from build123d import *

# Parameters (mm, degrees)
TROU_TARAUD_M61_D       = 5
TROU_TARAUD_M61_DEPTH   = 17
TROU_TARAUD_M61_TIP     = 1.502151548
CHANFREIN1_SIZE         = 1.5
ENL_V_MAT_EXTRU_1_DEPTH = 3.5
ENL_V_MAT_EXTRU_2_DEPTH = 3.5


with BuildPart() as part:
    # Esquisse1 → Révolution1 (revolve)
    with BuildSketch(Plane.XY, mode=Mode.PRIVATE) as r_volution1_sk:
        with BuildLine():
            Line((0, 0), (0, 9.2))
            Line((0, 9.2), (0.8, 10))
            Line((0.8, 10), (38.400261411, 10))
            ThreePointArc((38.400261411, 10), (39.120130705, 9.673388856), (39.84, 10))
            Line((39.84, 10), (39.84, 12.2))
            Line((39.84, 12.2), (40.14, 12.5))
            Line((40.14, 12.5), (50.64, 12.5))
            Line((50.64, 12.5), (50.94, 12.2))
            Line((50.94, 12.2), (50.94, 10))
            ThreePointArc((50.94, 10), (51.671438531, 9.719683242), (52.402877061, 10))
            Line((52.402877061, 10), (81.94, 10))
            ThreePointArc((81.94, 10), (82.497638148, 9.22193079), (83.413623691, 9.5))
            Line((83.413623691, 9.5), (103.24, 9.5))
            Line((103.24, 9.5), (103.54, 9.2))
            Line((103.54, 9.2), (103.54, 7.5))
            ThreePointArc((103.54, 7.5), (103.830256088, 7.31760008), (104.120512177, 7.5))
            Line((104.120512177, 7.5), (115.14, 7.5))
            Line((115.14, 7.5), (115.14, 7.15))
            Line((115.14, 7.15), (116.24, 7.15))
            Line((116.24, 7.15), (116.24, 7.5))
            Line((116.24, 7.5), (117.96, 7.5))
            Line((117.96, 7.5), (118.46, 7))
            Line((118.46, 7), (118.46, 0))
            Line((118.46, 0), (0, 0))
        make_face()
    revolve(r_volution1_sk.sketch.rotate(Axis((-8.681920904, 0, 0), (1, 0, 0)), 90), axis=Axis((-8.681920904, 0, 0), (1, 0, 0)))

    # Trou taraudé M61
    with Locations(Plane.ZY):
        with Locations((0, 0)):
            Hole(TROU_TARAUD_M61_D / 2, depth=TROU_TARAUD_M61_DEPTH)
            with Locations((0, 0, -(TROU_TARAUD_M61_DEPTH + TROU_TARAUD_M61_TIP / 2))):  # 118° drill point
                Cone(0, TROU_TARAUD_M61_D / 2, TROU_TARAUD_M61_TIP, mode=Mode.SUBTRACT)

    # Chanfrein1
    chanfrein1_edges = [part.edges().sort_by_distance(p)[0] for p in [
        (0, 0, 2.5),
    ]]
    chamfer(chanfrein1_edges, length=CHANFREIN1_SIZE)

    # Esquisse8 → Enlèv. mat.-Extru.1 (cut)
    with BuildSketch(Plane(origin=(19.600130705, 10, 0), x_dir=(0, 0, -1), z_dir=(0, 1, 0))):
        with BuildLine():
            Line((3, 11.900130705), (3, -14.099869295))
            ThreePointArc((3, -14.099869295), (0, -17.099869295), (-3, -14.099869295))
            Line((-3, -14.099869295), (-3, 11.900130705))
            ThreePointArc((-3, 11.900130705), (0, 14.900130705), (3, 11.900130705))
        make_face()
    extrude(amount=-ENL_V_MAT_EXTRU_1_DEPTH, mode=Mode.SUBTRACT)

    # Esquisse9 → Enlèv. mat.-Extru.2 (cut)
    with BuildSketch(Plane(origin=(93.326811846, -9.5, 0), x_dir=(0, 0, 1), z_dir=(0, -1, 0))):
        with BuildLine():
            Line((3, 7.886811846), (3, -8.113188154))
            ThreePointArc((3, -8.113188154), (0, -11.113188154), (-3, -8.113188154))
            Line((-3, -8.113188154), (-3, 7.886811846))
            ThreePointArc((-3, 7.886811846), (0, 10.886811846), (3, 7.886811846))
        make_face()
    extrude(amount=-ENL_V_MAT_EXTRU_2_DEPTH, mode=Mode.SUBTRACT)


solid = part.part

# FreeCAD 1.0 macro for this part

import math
import FreeCAD as App
import Part
import Sketcher
Q = App.Units.Quantity


def edges_at(feature, points):
    """Names of the edges that pass closest to the given points."""
    edges = feature.Shape.Edges
    near = lambda p: min(range(len(edges)), key=lambda i: edges[i].distToShape(Part.Vertex(*p))[0])
    return sorted({f"Edge{near(p) + 1}" for p in points})

doc = App.newDocument("Part")
body = doc.addObject("PartDesign::Body", "Body")

# Sketch on XY plane
sketch1 = body.newObject("Sketcher::SketchObject", "Sketch")
sketch1.AttachmentSupport = (doc.getObject("XY_Plane"), [""])
sketch1.MapMode = "FlatFace"
sketch1.addGeometry([
    Part.LineSegment(App.Vector(0, 9.2, 0), App.Vector(0, 0, 0)),  # 0
    Part.LineSegment(App.Vector(0, 0, 0), App.Vector(118.46, 0, 0)),  # 1
    Part.LineSegment(App.Vector(118.46, 0, 0), App.Vector(118.46, 7, 0)),  # 2
    Part.LineSegment(App.Vector(118.46, 7, 0), App.Vector(117.96, 7.5, 0)),  # 3
    Part.LineSegment(App.Vector(117.96, 7.5, 0), App.Vector(116.24, 7.5, 0)),  # 4
    Part.LineSegment(App.Vector(116.24, 7.5, 0), App.Vector(116.24, 7.15, 0)),  # 5
    Part.LineSegment(App.Vector(116.24, 7.15, 0), App.Vector(115.14, 7.15, 0)),  # 6
    Part.LineSegment(App.Vector(115.14, 7.15, 0), App.Vector(115.14, 7.5, 0)),  # 7
    Part.LineSegment(App.Vector(115.14, 7.5, 0), App.Vector(104.120512, 7.5, 0)),  # 8
    Part.ArcOfCircle(Part.Circle(App.Vector(103.830256, 7.639745, 0), App.Vector(0, 0, 1), 0.322145), math.radians(-154.291356), math.radians(-25.708644)),  # 9
    Part.LineSegment(App.Vector(103.54, 7.5, 0), App.Vector(103.54, 9.2, 0)),  # 10
    Part.LineSegment(App.Vector(103.54, 9.2, 0), App.Vector(103.24, 9.5, 0)),  # 11
    Part.LineSegment(App.Vector(103.24, 9.5, 0), App.Vector(83.413624, 9.5, 0)),  # 12
    Part.ArcOfCircle(Part.Circle(App.Vector(82.761637, 10, 0), App.Vector(0, 0, 1), 0.821637), math.radians(180), math.radians(322.515887)),  # 13
    Part.LineSegment(App.Vector(81.94, 10, 0), App.Vector(52.402877, 10, 0)),  # 14
    Part.ArcOfCircle(Part.Circle(App.Vector(51.671439, 10.814123, 0), App.Vector(0, 0, 1), 1.09444), math.radians(-131.937696), math.radians(-48.062303)),  # 15
    Part.LineSegment(App.Vector(50.94, 10, 0), App.Vector(50.94, 12.2, 0)),  # 16
    Part.LineSegment(App.Vector(50.94, 12.2, 0), App.Vector(50.64, 12.5, 0)),  # 17
    Part.LineSegment(App.Vector(50.64, 12.5, 0), App.Vector(40.14, 12.5, 0)),  # 18
    Part.LineSegment(App.Vector(40.14, 12.5, 0), App.Vector(39.84, 12.2, 0)),  # 19
    Part.LineSegment(App.Vector(39.84, 12.2, 0), App.Vector(39.84, 10, 0)),  # 20
    Part.ArcOfCircle(Part.Circle(App.Vector(39.120131, 10.630011, 0), App.Vector(0, 0, 1), 0.956622), math.radians(-138.808442), math.radians(-41.191558)),  # 21
    Part.LineSegment(App.Vector(38.400261, 10, 0), App.Vector(0.8, 10, 0)),  # 22
    Part.LineSegment(App.Vector(0.8, 10, 0), App.Vector(0, 9.2, 0)),  # 23
], False)
sketch1.addConstraint([
    Sketcher.Constraint("Coincident", 0, 2, 1, 1),
    Sketcher.Constraint("Coincident", 1, 2, 2, 1),
    Sketcher.Constraint("Coincident", 2, 2, 3, 1),
    Sketcher.Constraint("Coincident", 3, 2, 4, 1),
    Sketcher.Constraint("Coincident", 4, 2, 5, 1),
    Sketcher.Constraint("Coincident", 5, 2, 6, 1),
    Sketcher.Constraint("Coincident", 6, 2, 7, 1),
    Sketcher.Constraint("Coincident", 7, 2, 8, 1),
    Sketcher.Constraint("Coincident", 8, 2, 9, 2),
    Sketcher.Constraint("Coincident", 9, 1, 10, 1),
    Sketcher.Constraint("Coincident", 10, 2, 11, 1),
    Sketcher.Constraint("Coincident", 11, 2, 12, 1),
    Sketcher.Constraint("Coincident", 12, 2, 13, 2),
    Sketcher.Constraint("Coincident", 13, 1, 14, 1),
    Sketcher.Constraint("Coincident", 14, 2, 15, 2),
    Sketcher.Constraint("Coincident", 15, 1, 16, 1),
    Sketcher.Constraint("Coincident", 16, 2, 17, 1),
    Sketcher.Constraint("Coincident", 17, 2, 18, 1),
    Sketcher.Constraint("Coincident", 18, 2, 19, 1),
    Sketcher.Constraint("Coincident", 19, 2, 20, 1),
    Sketcher.Constraint("Coincident", 20, 2, 21, 2),
    Sketcher.Constraint("Coincident", 21, 1, 22, 1),
    Sketcher.Constraint("Coincident", 22, 2, 23, 1),
    Sketcher.Constraint("Coincident", 23, 2, 0, 1),
    Sketcher.Constraint("Vertical", 0),
    Sketcher.Constraint("Horizontal", 1),
    Sketcher.Constraint("Vertical", 2),
    Sketcher.Constraint("Horizontal", 4),
    Sketcher.Constraint("Vertical", 5),
    Sketcher.Constraint("Horizontal", 6),
    Sketcher.Constraint("Vertical", 7),
    Sketcher.Constraint("Horizontal", 8),
    Sketcher.Constraint("Vertical", 10),
    Sketcher.Constraint("Horizontal", 12),
    Sketcher.Constraint("Horizontal", 14),
    Sketcher.Constraint("Vertical", 16),
    Sketcher.Constraint("Horizontal", 18),
    Sketcher.Constraint("Vertical", 20),
    Sketcher.Constraint("Horizontal", 22),
    Sketcher.Constraint("Coincident", 0, 2, -1, 1),
    Sketcher.Constraint("Parallel", 3, 11),
    Sketcher.Constraint("Parallel", 11, 17),
    Sketcher.Constraint("Perpendicular", 17, 19),
    Sketcher.Constraint("Parallel", 19, 23),
    Sketcher.Constraint("Horizontal", 4, 2, 7, 2),
    Sketcher.Constraint("Horizontal", 8, 2, 9, 1),
    Sketcher.Constraint("Horizontal", 14, 2, 15, 1),
    Sketcher.Constraint("Horizontal", 16, 2, 19, 2),
    Sketcher.Constraint("Horizontal", 15, 1, 20, 2),
    Sketcher.Constraint("Horizontal", 20, 2, 21, 1),
    Sketcher.Constraint("Horizontal", 10, 2, 23, 2),
    Sketcher.Constraint("Equal", 11, 17),
    Sketcher.Constraint("Equal", 17, 19),
    Sketcher.Constraint("DistanceY", 2, 1, 2, 2, Q("7 mm")),
    Sketcher.Constraint("DistanceX", 6, 2, 6, 1, Q("1.1 mm")),
    Sketcher.Constraint("DistanceX", 18, 2, 18, 1, Q("10.5 mm")),
    Sketcher.Constraint("DistanceY", 0, 2, 0, 1, Q("9.2 mm")),
    Sketcher.Constraint("DistanceY", 10, 1, 10, 2, Q("1.7 mm")),
    Sketcher.Constraint("DistanceY", 16, 1, 16, 2, Q("2.2 mm")),
    Sketcher.Constraint("DistanceY", -1, 1, 13, 3, Q("10 mm")),
    Sketcher.Constraint("DistanceY", -1, 1, 13, 1, Q("10 mm")),
    Sketcher.Constraint("DistanceY", 9, 1, 11, 2, Q("2 mm")),
    Sketcher.Constraint("DistanceX", 15, 1, 13, 1, Q("31 mm")),
    Sketcher.Constraint("DistanceX", 1, 1, 1, 2, Q("118.46 mm")),
    Sketcher.Constraint("DistanceX", 4, 2, 4, 1, Q("1.72 mm")),
    Sketcher.Constraint("DistanceY", 5, 2, 5, 1, Q("0.35 mm")),
    Sketcher.Constraint("DistanceX", 9, 1, 7, 2, Q("11.6 mm")),
    Sketcher.Constraint("DistanceX", 13, 1, 11, 2, Q("21.3 mm")),
    Sketcher.Constraint("Radius", 15, Q("1.09444 mm")),
    Sketcher.Constraint("Radius", 21, Q("0.956622 mm")),
    Sketcher.Constraint("Radius", 9, Q("0.322145 mm")),
    Sketcher.Constraint("Radius", 13, Q("0.821637 mm")),
    Sketcher.Constraint("DistanceX", 22, 2, 22, 1, Q("37.600261 mm")),
    Sketcher.Constraint("DistanceX", 15, 3, 13, 3, Q("31.090198 mm")),
    Sketcher.Constraint("DistanceX", 8, 2, 8, 1, Q("11.019488 mm")),
])
revolution = body.newObject("PartDesign::Revolution", "Revolution")
revolution.Profile = sketch1
revolution.ReferenceAxis = (sketch1, ["H_Axis"])
revolution.Angle = 360

# Sketch on YZ plane
sketch2 = body.newObject("Sketcher::SketchObject", "Sketch001")
sketch2.AttachmentSupport = (doc.getObject("YZ_Plane"), [""])
sketch2.MapMode = "FlatFace"
sketch2.addGeometry(Part.Circle(App.Vector(0, 0, 0), App.Vector(0, 0, 1), 2.5), False)
sketch2.addConstraint([
    Sketcher.Constraint("Coincident", 0, 3, -1, 1),
    Sketcher.Constraint("Diameter", 0, Q("5 mm")),
])
doc.recompute()
hole = body.newObject("PartDesign::Hole", "Hole")
hole.Profile = sketch2
hole.ThreadType = "None"
hole.Diameter = 5
hole.DepthType = "Dimension"
hole.Depth = 17
hole.DrillPoint = "Angled"
hole.DrillPointAngle = 118
hole.Reversed = True
doc.recompute()

chamfer = body.newObject("PartDesign::Chamfer", "Chamfer")
chamfer.Base = (hole, edges_at(hole, [(0, 0, 2.5)]))
chamfer.Size = 1.5

# Sketch on XZ plane
sketch3 = body.newObject("Sketcher::SketchObject", "Sketch002")
sketch3.AttachmentSupport = (doc.getObject("XZ_Plane"), [""])
sketch3.MapMode = "FlatFace"
sketch3.AttachmentOffset = App.Placement(App.Vector(0, 0, -10), App.Rotation())
sketch3.addGeometry([
    Part.LineSegment(App.Vector(33.7, -3, 0), App.Vector(7.7, -3, 0)),
    Part.ArcOfCircle(Part.Circle(App.Vector(7.7, 0, 0), App.Vector(0, 0, 1), 3), math.radians(90), math.radians(270)),
    Part.LineSegment(App.Vector(7.7, 3, 0), App.Vector(33.7, 3, 0)),
    Part.ArcOfCircle(Part.Circle(App.Vector(33.7, 0, 0), App.Vector(0, 0, 1), 3), math.radians(-90), math.radians(90)),
], False)
sketch3.addConstraint([
    Sketcher.Constraint("Tangent", 0, 2, 1, 2),
    Sketcher.Constraint("Tangent", 1, 1, 2, 1),
    Sketcher.Constraint("Tangent", 2, 2, 3, 2),
    Sketcher.Constraint("Tangent", 3, 1, 0, 1),
    Sketcher.Constraint("Horizontal", 0),
    Sketcher.Constraint("Horizontal", 2),
    Sketcher.Constraint("PointOnObject", 1, 3, -1),
    Sketcher.Constraint("Radius", 1, Q("3 mm")),
    Sketcher.Constraint("DistanceX", 0, 2, 0, 1, Q("26 mm")),
    Sketcher.Constraint("DistanceX", -1, 1, 1, 3, Q("7.7 mm")),
])
pocket1 = body.newObject("PartDesign::Pocket", "Pocket")
pocket1.Profile = sketch3
pocket1.Length = 3.5
pocket1.Reversed = True

# Sketch on XZ plane
sketch4 = body.newObject("Sketcher::SketchObject", "Sketch003")
sketch4.AttachmentSupport = (doc.getObject("XZ_Plane"), [""])
sketch4.MapMode = "FlatFace"
sketch4.AttachmentOffset = App.Placement(App.Vector(0, 0, 9.5), App.Rotation())
sketch4.addGeometry([
    Part.LineSegment(App.Vector(101.44, 3, 0), App.Vector(85.44, 3, 0)),
    Part.ArcOfCircle(Part.Circle(App.Vector(85.44, 0, 0), App.Vector(0, 0, 1), 3), math.radians(90), math.radians(270)),
    Part.LineSegment(App.Vector(85.44, -3, 0), App.Vector(101.44, -3, 0)),
    Part.ArcOfCircle(Part.Circle(App.Vector(101.44, 0, 0), App.Vector(0, 0, 1), 3), math.radians(-90), math.radians(90)),
], False)
sketch4.addConstraint([
    Sketcher.Constraint("Tangent", 0, 2, 1, 1),
    Sketcher.Constraint("Tangent", 1, 2, 2, 1),
    Sketcher.Constraint("Tangent", 2, 2, 3, 1),
    Sketcher.Constraint("Tangent", 3, 2, 0, 1),
    Sketcher.Constraint("Horizontal", 0),
    Sketcher.Constraint("Horizontal", 2),
    Sketcher.Constraint("PointOnObject", 1, 3, -1),
    Sketcher.Constraint("Radius", 1, Q("3 mm")),
    Sketcher.Constraint("DistanceX", 0, 2, 0, 1, Q("16 mm")),
    Sketcher.Constraint("DistanceX", -1, 1, 1, 3, Q("85.44 mm")),
])
pocket2 = body.newObject("PartDesign::Pocket", "Pocket001")
pocket2.Profile = sketch4
pocket2.Length = 3.5

doc.recompute()
